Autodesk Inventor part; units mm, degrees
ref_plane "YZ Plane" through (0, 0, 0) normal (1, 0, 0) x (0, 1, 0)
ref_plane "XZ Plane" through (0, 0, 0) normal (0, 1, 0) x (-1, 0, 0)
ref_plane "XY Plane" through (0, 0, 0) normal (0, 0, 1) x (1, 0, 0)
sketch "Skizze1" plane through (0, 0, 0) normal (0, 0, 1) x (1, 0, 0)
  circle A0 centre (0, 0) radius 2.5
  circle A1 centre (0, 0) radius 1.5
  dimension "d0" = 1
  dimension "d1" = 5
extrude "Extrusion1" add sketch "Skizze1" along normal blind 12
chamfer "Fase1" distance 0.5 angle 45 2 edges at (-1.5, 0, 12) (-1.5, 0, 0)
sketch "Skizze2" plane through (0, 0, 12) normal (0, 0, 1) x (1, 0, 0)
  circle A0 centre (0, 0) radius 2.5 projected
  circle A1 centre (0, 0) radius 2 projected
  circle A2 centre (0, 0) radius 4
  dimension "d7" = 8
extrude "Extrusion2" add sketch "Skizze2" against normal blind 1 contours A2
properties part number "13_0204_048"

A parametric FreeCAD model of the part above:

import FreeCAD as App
import Part
import Sketcher

V = App.Vector


def edges_at(feature, points):
    """Names of the edges that pass closest to the given points."""
    edges = feature.Shape.Edges
    near = lambda p: min(range(len(edges)), key=lambda i: edges[i].distToShape(Part.Vertex(*p))[0])
    return sorted({f"Edge{near(p) + 1}" for p in points})

doc = App.newDocument("Part")
body = doc.addObject("PartDesign::Body", "Body")

# Sketch on XY plane
sketch1 = body.newObject("Sketcher::SketchObject", "Sketch")
sketch1.AttachmentSupport = (doc.getObject("XY_Plane"), [""])
sketch1.MapMode = "FlatFace"
sketch1.addGeometry([
    Part.Circle(V(0, 0, 0), V(0, 0, 1), 2.5),
    Part.Circle(V(0, 0, 0), V(0, 0, 1), 1.5),
], False)
sketch1.addConstraint([
    Sketcher.Constraint("Coincident", 0, 3, -1, 1),
    Sketcher.Constraint("Coincident", 1, 3, -1, 1),
    Sketcher.Constraint("Diameter", 0, 5.0),
    Sketcher.Constraint("Diameter", 1, 3.0),
])
pad1 = body.newObject("PartDesign::Pad", "Pad")
pad1.Profile = sketch1
pad1.Length = 12
doc.recompute()

chamfer = body.newObject("PartDesign::Chamfer", "Chamfer")
chamfer.Base = (pad1, edges_at(pad1, [(-1.5, 0, 12), (-1.5, 0, 0)]))
chamfer.Size = 0.5

# Sketch on XY plane
sketch2 = body.newObject("Sketcher::SketchObject", "Sketch001")
sketch2.AttachmentSupport = (doc.getObject("XY_Plane"), [""])
sketch2.MapMode = "FlatFace"
sketch2.AttachmentOffset = App.Placement(V(0, 0, 12), App.Rotation())
sketch2.addGeometry([
    Part.Circle(V(0, 0, 0), V(0, 0, 1), 4),
    Part.Circle(V(0, 0, 0), V(0, 0, 1), 2.5),
], False)
sketch2.addConstraint([
    Sketcher.Constraint("Coincident", 0, 3, -1, 1),
    Sketcher.Constraint("Coincident", 1, 3, -1, 1),
    Sketcher.Constraint("Diameter", 0, 8.0),
    Sketcher.Constraint("Diameter", 1, 5.0),
])
pad2 = body.newObject("PartDesign::Pad", "Pad001")
pad2.Profile = sketch2
pad2.Length = 1
pad2.Reversed = True

doc.recompute()
